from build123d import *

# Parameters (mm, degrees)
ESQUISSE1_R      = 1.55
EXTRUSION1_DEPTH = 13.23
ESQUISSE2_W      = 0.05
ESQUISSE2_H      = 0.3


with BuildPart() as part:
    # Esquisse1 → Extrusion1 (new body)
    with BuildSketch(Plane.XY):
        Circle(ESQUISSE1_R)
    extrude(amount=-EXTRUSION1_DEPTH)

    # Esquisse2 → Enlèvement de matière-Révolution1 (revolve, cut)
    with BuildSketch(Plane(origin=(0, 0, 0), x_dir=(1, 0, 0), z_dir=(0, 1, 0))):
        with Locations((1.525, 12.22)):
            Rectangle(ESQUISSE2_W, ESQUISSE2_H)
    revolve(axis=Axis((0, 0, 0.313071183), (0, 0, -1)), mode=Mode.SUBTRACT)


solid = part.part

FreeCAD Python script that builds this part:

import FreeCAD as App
import Part
import Sketcher

V = App.Vector

doc = App.newDocument("Part")
body = doc.addObject("PartDesign::Body", "Body")

# Sketch on XY plane
sketch1 = doc.addObject("Sketcher::SketchObject", "Sketch")
body.addObject(sketch1)
sketch1.AttachmentSupport = (doc.XY_Plane, [""])
sketch1.MapMode = "FlatFace"
sketch1.addGeometry(Part.Circle(V(0, 0, 0), V(0, 0, 1), 1.6), False)
sketch1.addConstraint(Sketcher.Constraint("Coincident", 0, 3, -1, 1))
sketch1.addConstraint(Sketcher.Constraint("Diameter", 0, 3.1))
pad1 = doc.addObject("PartDesign::Pad", "Pad")
body.addObject(pad1)
pad1.Profile = sketch1
pad1.Length = 13.23
pad1.Reversed = True

# Sketch on XZ plane
sketch2 = doc.addObject("Sketcher::SketchObject", "Sketch001")
body.addObject(sketch2)
sketch2.AttachmentSupport = (doc.XZ_Plane, [""])
sketch2.MapMode = "FlatFace"
sketch2.addGeometry(Part.LineSegment(V(1.5, -12.37, 0), V(1.5, -12.07, 0)), False)
sketch2.addGeometry(Part.LineSegment(V(1.5, -12.07, 0), V(1.55, -12.07, 0)), False)
sketch2.addGeometry(Part.LineSegment(V(1.55, -12.07, 0), V(1.55, -12.37, 0)), False)
sketch2.addGeometry(Part.LineSegment(V(1.55, -12.37, 0), V(1.5, -12.37, 0)), False)
sketch2.addConstraint(Sketcher.Constraint("Coincident", 0, 2, 1, 1))
sketch2.addConstraint(Sketcher.Constraint("Coincident", 1, 2, 2, 1))
sketch2.addConstraint(Sketcher.Constraint("Coincident", 2, 2, 3, 1))
sketch2.addConstraint(Sketcher.Constraint("Coincident", 3, 2, 0, 1))
sketch2.addConstraint(Sketcher.Constraint("Vertical", 0))
sketch2.addConstraint(Sketcher.Constraint("Horizontal", 1))
sketch2.addConstraint(Sketcher.Constraint("Vertical", 2))
sketch2.addConstraint(Sketcher.Constraint("Horizontal", 3))
sketch2.addConstraint(Sketcher.Constraint("DistanceY", 0, 1, 0, 2, 0.3))
sketch2.addConstraint(Sketcher.Constraint("DistanceX", 1, 1, 1, 2, 0.05))
sketch2.addConstraint(Sketcher.Constraint("DistanceX", -1, 1, 0, 2, 1.5))
sketch2.addConstraint(Sketcher.Constraint("DistanceY", 0, 2, -1, 1, 12.07))
groove = doc.addObject("PartDesign::Groove", "Groove")
body.addObject(groove)
groove.Profile = sketch2
groove.ReferenceAxis = (sketch2, ["V_Axis"])
groove.Angle = 360

doc.recompute()
